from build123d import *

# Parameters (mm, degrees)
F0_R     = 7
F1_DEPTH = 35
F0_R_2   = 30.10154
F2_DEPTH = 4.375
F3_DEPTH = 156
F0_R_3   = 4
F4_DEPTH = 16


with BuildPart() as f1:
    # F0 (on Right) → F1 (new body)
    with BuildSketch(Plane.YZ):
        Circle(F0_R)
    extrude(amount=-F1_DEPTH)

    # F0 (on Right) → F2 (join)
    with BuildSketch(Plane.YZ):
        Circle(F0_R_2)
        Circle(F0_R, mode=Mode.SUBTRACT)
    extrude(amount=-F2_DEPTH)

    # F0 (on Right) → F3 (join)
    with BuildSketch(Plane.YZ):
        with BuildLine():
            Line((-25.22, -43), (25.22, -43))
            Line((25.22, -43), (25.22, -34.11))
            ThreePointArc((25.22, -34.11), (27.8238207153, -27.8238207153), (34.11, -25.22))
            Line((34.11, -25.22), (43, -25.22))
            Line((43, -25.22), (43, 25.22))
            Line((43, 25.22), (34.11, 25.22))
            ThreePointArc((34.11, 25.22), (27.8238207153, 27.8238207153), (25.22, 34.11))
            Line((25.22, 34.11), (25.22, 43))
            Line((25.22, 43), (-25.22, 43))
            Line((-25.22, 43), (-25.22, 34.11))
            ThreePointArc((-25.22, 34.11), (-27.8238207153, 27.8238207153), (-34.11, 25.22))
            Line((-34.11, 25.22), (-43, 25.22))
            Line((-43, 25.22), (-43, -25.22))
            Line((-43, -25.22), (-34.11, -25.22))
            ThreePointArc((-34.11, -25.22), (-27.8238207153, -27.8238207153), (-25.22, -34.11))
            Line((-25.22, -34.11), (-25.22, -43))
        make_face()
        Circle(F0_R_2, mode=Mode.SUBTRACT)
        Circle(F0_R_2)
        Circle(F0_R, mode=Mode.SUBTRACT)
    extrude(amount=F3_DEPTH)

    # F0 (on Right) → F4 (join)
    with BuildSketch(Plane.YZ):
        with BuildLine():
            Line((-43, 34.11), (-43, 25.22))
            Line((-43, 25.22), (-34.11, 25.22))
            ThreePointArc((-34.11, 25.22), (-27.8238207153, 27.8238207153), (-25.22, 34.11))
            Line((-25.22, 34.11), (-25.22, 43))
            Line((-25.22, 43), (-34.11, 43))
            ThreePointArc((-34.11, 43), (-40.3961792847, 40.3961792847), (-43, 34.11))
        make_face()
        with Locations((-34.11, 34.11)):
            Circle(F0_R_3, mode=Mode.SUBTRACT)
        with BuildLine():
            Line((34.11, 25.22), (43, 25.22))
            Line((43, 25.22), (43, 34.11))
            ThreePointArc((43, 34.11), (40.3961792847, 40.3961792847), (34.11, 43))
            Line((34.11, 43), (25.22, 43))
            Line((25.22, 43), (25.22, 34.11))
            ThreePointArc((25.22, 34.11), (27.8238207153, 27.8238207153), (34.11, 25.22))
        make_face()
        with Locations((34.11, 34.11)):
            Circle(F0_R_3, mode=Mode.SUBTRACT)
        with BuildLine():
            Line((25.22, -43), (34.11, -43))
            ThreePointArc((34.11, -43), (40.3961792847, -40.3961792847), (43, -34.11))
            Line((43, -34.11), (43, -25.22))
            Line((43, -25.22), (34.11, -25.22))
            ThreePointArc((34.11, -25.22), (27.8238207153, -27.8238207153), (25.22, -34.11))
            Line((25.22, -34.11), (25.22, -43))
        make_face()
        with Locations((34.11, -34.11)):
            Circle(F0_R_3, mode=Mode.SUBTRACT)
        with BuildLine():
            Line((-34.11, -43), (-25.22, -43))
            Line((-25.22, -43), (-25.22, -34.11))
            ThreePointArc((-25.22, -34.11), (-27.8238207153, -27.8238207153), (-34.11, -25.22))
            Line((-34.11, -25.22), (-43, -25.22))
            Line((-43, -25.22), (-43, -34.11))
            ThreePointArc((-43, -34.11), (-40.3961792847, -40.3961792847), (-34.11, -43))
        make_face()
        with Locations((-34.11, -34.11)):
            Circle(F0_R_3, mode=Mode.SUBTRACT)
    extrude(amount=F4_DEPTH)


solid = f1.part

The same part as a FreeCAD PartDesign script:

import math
import FreeCAD as App
import Part
import Sketcher
Q = App.Units.Quantity

doc = App.newDocument("Part")
body = doc.addObject("PartDesign::Body", "Body")

# Sketch on YZ plane
sketch1 = body.newObject("Sketcher::SketchObject", "Sketch")
sketch1.AttachmentSupport = (doc.getObject("YZ_Plane"), [""])
sketch1.MapMode = "FlatFace"
sketch1.addGeometry(Part.Circle(App.Vector(0, 0, 0), App.Vector(0, 0, 1), 7), False)
sketch1.addConstraint(Sketcher.Constraint("Coincident", 0, 3, -1, 1))
sketch1.addConstraint(Sketcher.Constraint("Diameter", 0, Q("14 mm")))
pad1 = body.newObject("PartDesign::Pad", "Pad")
pad1.Profile = sketch1
pad1.Length = 35
pad1.Reversed = True

# Sketch on YZ plane
sketch2 = body.newObject("Sketcher::SketchObject", "Sketch001")
sketch2.AttachmentSupport = (doc.getObject("YZ_Plane"), [""])
sketch2.MapMode = "FlatFace"
sketch2.addGeometry(Part.Circle(App.Vector(0, 0, 0), App.Vector(0, 0, 1), 30), False)
sketch2.addGeometry(Part.Circle(App.Vector(0, 0, 0), App.Vector(0, 0, 1), 7), False)
sketch2.addConstraint(Sketcher.Constraint("Coincident", 0, 3, -1, 1))
sketch2.addConstraint(Sketcher.Constraint("Coincident", 1, 3, -1, 1))
sketch2.addConstraint(Sketcher.Constraint("Diameter", 1, Q("14 mm")))
sketch2.addConstraint(Sketcher.Constraint("Diameter", 0, Q("60.20308 mm")))
pad2 = body.newObject("PartDesign::Pad", "Pad001")
pad2.Profile = sketch2
pad2.Length = 4.375
pad2.Reversed = True

# Sketch on YZ plane
sketch3 = body.newObject("Sketcher::SketchObject", "Sketch002")
sketch3.AttachmentSupport = (doc.getObject("YZ_Plane"), [""])
sketch3.MapMode = "FlatFace"
sketch3.addGeometry(Part.LineSegment(App.Vector(-25, -43, 0), App.Vector(25, -43, 0)), False)
sketch3.addGeometry(Part.LineSegment(App.Vector(25, -43, 0), App.Vector(25, -34, 0)), False)
sketch3.addGeometry(Part.ArcOfCircle(Part.Circle(App.Vector(34, -34, 0), App.Vector(0, 0, 1), 9), math.radians(90), math.radians(180)), False)
sketch3.addGeometry(Part.LineSegment(App.Vector(34, -25, 0), App.Vector(43, -25, 0)), False)
sketch3.addGeometry(Part.LineSegment(App.Vector(43, -25, 0), App.Vector(43, 25, 0)), False)
sketch3.addGeometry(Part.LineSegment(App.Vector(43, 25, 0), App.Vector(34, 25, 0)), False)
sketch3.addGeometry(Part.ArcOfCircle(Part.Circle(App.Vector(34, 34, 0), App.Vector(0, 0, 1), 9), math.radians(180), math.radians(270)), False)
sketch3.addGeometry(Part.LineSegment(App.Vector(25, 34, 0), App.Vector(25, 43, 0)), False)
sketch3.addGeometry(Part.LineSegment(App.Vector(25, 43, 0), App.Vector(-25, 43, 0)), False)
sketch3.addGeometry(Part.LineSegment(App.Vector(-25, 43, 0), App.Vector(-25, 34, 0)), False)
sketch3.addGeometry(Part.ArcOfCircle(Part.Circle(App.Vector(-34, 34, 0), App.Vector(0, 0, 1), 9), math.radians(-90), math.radians(0)), False)
sketch3.addGeometry(Part.LineSegment(App.Vector(-34, 25, 0), App.Vector(-43, 25, 0)), False)
sketch3.addGeometry(Part.LineSegment(App.Vector(-43, 25, 0), App.Vector(-43, -25, 0)), False)
sketch3.addGeometry(Part.LineSegment(App.Vector(-43, -25, 0), App.Vector(-34, -25, 0)), False)
sketch3.addGeometry(Part.ArcOfCircle(Part.Circle(App.Vector(-34, -34, 0), App.Vector(0, 0, 1), 9), math.radians(0), math.radians(90)), False)
sketch3.addGeometry(Part.LineSegment(App.Vector(-25, -34, 0), App.Vector(-25, -43, 0)), False)
sketch3.addGeometry(Part.Circle(App.Vector(0, 0, 0), App.Vector(0, 0, 1), 7), False)
sketch3.addConstraint(Sketcher.Constraint("Coincident", 0, 2, 1, 1))
sketch3.addConstraint(Sketcher.Constraint("Tangent", 1, 2, 2, 2))
sketch3.addConstraint(Sketcher.Constraint("Tangent", 2, 1, 3, 1))
sketch3.addConstraint(Sketcher.Constraint("Coincident", 3, 2, 4, 1))
sketch3.addConstraint(Sketcher.Constraint("Coincident", 4, 2, 5, 1))
sketch3.addConstraint(Sketcher.Constraint("Tangent", 5, 2, 6, 2))
sketch3.addConstraint(Sketcher.Constraint("Tangent", 6, 1, 7, 1))
sketch3.addConstraint(Sketcher.Constraint("Coincident", 7, 2, 8, 1))
sketch3.addConstraint(Sketcher.Constraint("Coincident", 8, 2, 9, 1))
sketch3.addConstraint(Sketcher.Constraint("Tangent", 9, 2, 10, 2))
sketch3.addConstraint(Sketcher.Constraint("Tangent", 10, 1, 11, 1))
sketch3.addConstraint(Sketcher.Constraint("Coincident", 11, 2, 12, 1))
sketch3.addConstraint(Sketcher.Constraint("Coincident", 12, 2, 13, 1))
sketch3.addConstraint(Sketcher.Constraint("Tangent", 13, 2, 14, 2))
sketch3.addConstraint(Sketcher.Constraint("Tangent", 14, 1, 15, 1))
sketch3.addConstraint(Sketcher.Constraint("Coincident", 15, 2, 0, 1))
sketch3.addConstraint(Sketcher.Constraint("Horizontal", 0))
sketch3.addConstraint(Sketcher.Constraint("Vertical", 1))
sketch3.addConstraint(Sketcher.Constraint("Horizontal", 3))
sketch3.addConstraint(Sketcher.Constraint("Vertical", 4))
sketch3.addConstraint(Sketcher.Constraint("Horizontal", 5))
sketch3.addConstraint(Sketcher.Constraint("Vertical", 7))
sketch3.addConstraint(Sketcher.Constraint("Horizontal", 8))
sketch3.addConstraint(Sketcher.Constraint("Vertical", 9))
sketch3.addConstraint(Sketcher.Constraint("Horizontal", 11))
sketch3.addConstraint(Sketcher.Constraint("Vertical", 12))
sketch3.addConstraint(Sketcher.Constraint("Horizontal", 13))
sketch3.addConstraint(Sketcher.Constraint("Vertical", 15))
sketch3.addConstraint(Sketcher.Constraint("Coincident", 16, 3, -1, 1))
sketch3.addConstraint(Sketcher.Constraint("Equal", 2, 6))
sketch3.addConstraint(Sketcher.Constraint("Equal", 6, 10))
sketch3.addConstraint(Sketcher.Constraint("Equal", 10, 14))
sketch3.addConstraint(Sketcher.Constraint("Symmetric", 2, 3, 10, 3, -1, 1))
sketch3.addConstraint(Sketcher.Constraint("Symmetric", 6, 3, 14, 3, -1, 1))
sketch3.addConstraint(Sketcher.Constraint("Symmetric", 6, 3, 10, 3, -2))
sketch3.addConstraint(Sketcher.Constraint("Equal", 5, 11))
sketch3.addConstraint(Sketcher.Constraint("Equal", 13, 1))
sketch3.addConstraint(Sketcher.Constraint("Equal", 8, 4))
sketch3.addConstraint(Sketcher.Constraint("Equal", 1, 7))
sketch3.addConstraint(Sketcher.Constraint("Diameter", 16, Q("14 mm")))
sketch3.addConstraint(Sketcher.Constraint("Radius", 2, Q("8.89 mm")))
sketch3.addConstraint(Sketcher.Constraint("DistanceY", 0, 2, -1, 1, Q("43 mm")))
sketch3.addConstraint(Sketcher.Constraint("DistanceX", 0, 1, 0, 2, Q("50.44 mm")))
pad3 = body.newObject("PartDesign::Pad", "Pad002")
pad3.Profile = sketch3
pad3.Length = 156

# Sketch on YZ plane
sketch4 = body.newObject("Sketcher::SketchObject", "Sketch003")
sketch4.AttachmentSupport = (doc.getObject("YZ_Plane"), [""])
sketch4.MapMode = "FlatFace"
sketch4.addGeometry(Part.LineSegment(App.Vector(-43, 34.1, 0), App.Vector(-43, 25.2, 0)), False)
sketch4.addGeometry(Part.LineSegment(App.Vector(-43, 25.2, 0), App.Vector(-34.1, 25.2, 0)), False)
sketch4.addGeometry(Part.ArcOfCircle(Part.Circle(App.Vector(-34.1, 34.1, 0), App.Vector(0, 0, 1), 8.9), math.radians(-90), math.radians(0)), False)
sketch4.addGeometry(Part.LineSegment(App.Vector(-25.2, 34.1, 0), App.Vector(-25.2, 43, 0)), False)
sketch4.addGeometry(Part.LineSegment(App.Vector(-25.2, 43, 0), App.Vector(-34.1, 43, 0)), False)
sketch4.addGeometry(Part.ArcOfCircle(Part.Circle(App.Vector(-34.1, 34.1, 0), App.Vector(0, 0, 1), 8.9), math.radians(90), math.radians(180)), False)
sketch4.addGeometry(Part.Circle(App.Vector(-34.1, 34.1, 0), App.Vector(0, 0, 1), 4), False)
sketch4.addGeometry(Part.LineSegment(App.Vector(34.1, 25.2, 0), App.Vector(43, 25.2, 0)), False)
sketch4.addGeometry(Part.LineSegment(App.Vector(43, 25.2, 0), App.Vector(43, 34.1, 0)), False)
sketch4.addGeometry(Part.ArcOfCircle(Part.Circle(App.Vector(34.1, 34.1, 0), App.Vector(0, 0, 1), 8.9), math.radians(0), math.radians(90)), False)
sketch4.addGeometry(Part.LineSegment(App.Vector(34.1, 43, 0), App.Vector(25.2, 43, 0)), False)
sketch4.addGeometry(Part.LineSegment(App.Vector(25.2, 43, 0), App.Vector(25.2, 34.1, 0)), False)
sketch4.addGeometry(Part.ArcOfCircle(Part.Circle(App.Vector(34.1, 34.1, 0), App.Vector(0, 0, 1), 8.9), math.radians(180), math.radians(270)), False)
sketch4.addGeometry(Part.Circle(App.Vector(34.1, 34.1, 0), App.Vector(0, 0, 1), 4), False)
sketch4.addGeometry(Part.LineSegment(App.Vector(25.2, -43, 0), App.Vector(34.1, -43, 0)), False)
sketch4.addGeometry(Part.ArcOfCircle(Part.Circle(App.Vector(34.1, -34.1, 0), App.Vector(0, 0, 1), 8.9), math.radians(-90), math.radians(0)), False)
sketch4.addGeometry(Part.LineSegment(App.Vector(43, -34.1, 0), App.Vector(43, -25.2, 0)), False)
sketch4.addGeometry(Part.LineSegment(App.Vector(43, -25.2, 0), App.Vector(34.1, -25.2, 0)), False)
sketch4.addGeometry(Part.ArcOfCircle(Part.Circle(App.Vector(34.1, -34.1, 0), App.Vector(0, 0, 1), 8.9), math.radians(90), math.radians(180)), False)
sketch4.addGeometry(Part.LineSegment(App.Vector(25.2, -34.1, 0), App.Vector(25.2, -43, 0)), False)
sketch4.addGeometry(Part.Circle(App.Vector(34.1, -34.1, 0), App.Vector(0, 0, 1), 4), False)
sketch4.addGeometry(Part.LineSegment(App.Vector(-34.1, -43, 0), App.Vector(-25.2, -43, 0)), False)
sketch4.addGeometry(Part.LineSegment(App.Vector(-25.2, -43, 0), App.Vector(-25.2, -34.1, 0)), False)
sketch4.addGeometry(Part.ArcOfCircle(Part.Circle(App.Vector(-34.1, -34.1, 0), App.Vector(0, 0, 1), 8.9), math.radians(0), math.radians(90)), False)
sketch4.addGeometry(Part.LineSegment(App.Vector(-34.1, -25.2, 0), App.Vector(-43, -25.2, 0)), False)
sketch4.addGeometry(Part.LineSegment(App.Vector(-43, -25.2, 0), App.Vector(-43, -34.1, 0)), False)
sketch4.addGeometry(Part.ArcOfCircle(Part.Circle(App.Vector(-34.1, -34.1, 0), App.Vector(0, 0, 1), 8.9), math.radians(180), math.radians(270)), False)
sketch4.addGeometry(Part.Circle(App.Vector(-34.1, -34.1, 0), App.Vector(0, 0, 1), 4), False)
sketch4.addConstraint(Sketcher.Constraint("Coincident", 0, 2, 1, 1))
sketch4.addConstraint(Sketcher.Constraint("Tangent", 1, 2, 2, 1))
sketch4.addConstraint(Sketcher.Constraint("Tangent", 2, 2, 3, 1))
sketch4.addConstraint(Sketcher.Constraint("Coincident", 3, 2, 4, 1))
sketch4.addConstraint(Sketcher.Constraint("Tangent", 4, 2, 5, 1))
sketch4.addConstraint(Sketcher.Constraint("Tangent", 5, 2, 0, 1))
sketch4.addConstraint(Sketcher.Constraint("Coincident", 7, 2, 8, 1))
sketch4.addConstraint(Sketcher.Constraint("Tangent", 8, 2, 9, 1))
sketch4.addConstraint(Sketcher.Constraint("Tangent", 9, 2, 10, 1))
sketch4.addConstraint(Sketcher.Constraint("Coincident", 10, 2, 11, 1))
sketch4.addConstraint(Sketcher.Constraint("Tangent", 11, 2, 12, 1))
sketch4.addConstraint(Sketcher.Constraint("Tangent", 12, 2, 7, 1))
sketch4.addConstraint(Sketcher.Constraint("Tangent", 14, 2, 15, 1))
sketch4.addConstraint(Sketcher.Constraint("Tangent", 15, 2, 16, 1))
sketch4.addConstraint(Sketcher.Constraint("Coincident", 16, 2, 17, 1))
sketch4.addConstraint(Sketcher.Constraint("Tangent", 17, 2, 18, 1))
sketch4.addConstraint(Sketcher.Constraint("Tangent", 18, 2, 19, 1))
sketch4.addConstraint(Sketcher.Constraint("Coincident", 19, 2, 14, 1))
sketch4.addConstraint(Sketcher.Constraint("Coincident", 21, 2, 22, 1))
sketch4.addConstraint(Sketcher.Constraint("Tangent", 22, 2, 23, 1))
sketch4.addConstraint(Sketcher.Constraint("Tangent", 23, 2, 24, 1))
sketch4.addConstraint(Sketcher.Constraint("Coincident", 24, 2, 25, 1))
sketch4.addConstraint(Sketcher.Constraint("Tangent", 25, 2, 26, 1))
sketch4.addConstraint(Sketcher.Constraint("Tangent", 26, 2, 21, 1))
sketch4.addConstraint(Sketcher.Constraint("Vertical", 0))
sketch4.addConstraint(Sketcher.Constraint("Horizontal", 1))
sketch4.addConstraint(Sketcher.Constraint("Vertical", 3))
sketch4.addConstraint(Sketcher.Constraint("Horizontal", 4))
sketch4.addConstraint(Sketcher.Constraint("Horizontal", 7))
sketch4.addConstraint(Sketcher.Constraint("Vertical", 8))
sketch4.addConstraint(Sketcher.Constraint("Horizontal", 10))
sketch4.addConstraint(Sketcher.Constraint("Vertical", 11))
sketch4.addConstraint(Sketcher.Constraint("Horizontal", 14))
sketch4.addConstraint(Sketcher.Constraint("Vertical", 16))
sketch4.addConstraint(Sketcher.Constraint("Horizontal", 17))
sketch4.addConstraint(Sketcher.Constraint("Vertical", 19))
sketch4.addConstraint(Sketcher.Constraint("Horizontal", 21))
sketch4.addConstraint(Sketcher.Constraint("Vertical", 22))
sketch4.addConstraint(Sketcher.Constraint("Horizontal", 24))
sketch4.addConstraint(Sketcher.Constraint("Vertical", 25))
sketch4.addConstraint(Sketcher.Constraint("Coincident", 5, 3, 2, 3))
sketch4.addConstraint(Sketcher.Constraint("Coincident", 6, 3, 2, 3))
sketch4.addConstraint(Sketcher.Constraint("Coincident", 12, 3, 9, 3))
sketch4.addConstraint(Sketcher.Constraint("Coincident", 13, 3, 9, 3))
sketch4.addConstraint(Sketcher.Constraint("Coincident", 18, 3, 15, 3))
sketch4.addConstraint(Sketcher.Constraint("Coincident", 20, 3, 15, 3))
sketch4.addConstraint(Sketcher.Constraint("Coincident", 26, 3, 23, 3))
sketch4.addConstraint(Sketcher.Constraint("Coincident", 27, 3, 23, 3))
sketch4.addConstraint(Sketcher.Constraint("Equal", 2, 5))
sketch4.addConstraint(Sketcher.Constraint("Equal", 5, 9))
sketch4.addConstraint(Sketcher.Constraint("Equal", 9, 12))
sketch4.addConstraint(Sketcher.Constraint("Equal", 6, 13))
sketch4.addConstraint(Sketcher.Constraint("Equal", 12, 15))
sketch4.addConstraint(Sketcher.Constraint("Equal", 15, 18))
sketch4.addConstraint(Sketcher.Constraint("Equal", 13, 20))
sketch4.addConstraint(Sketcher.Constraint("Equal", 18, 23))
sketch4.addConstraint(Sketcher.Constraint("Equal", 23, 26))
sketch4.addConstraint(Sketcher.Constraint("Equal", 20, 27))
sketch4.addConstraint(Sketcher.Constraint("Symmetric", 2, 3, 15, 3, -1, 1))
sketch4.addConstraint(Sketcher.Constraint("Symmetric", 9, 3, 23, 3, -1, 1))
sketch4.addConstraint(Sketcher.Constraint("Symmetric", 2, 3, 9, 3, -2))
sketch4.addConstraint(Sketcher.Constraint("Diameter", 6, Q("8 mm")))
sketch4.addConstraint(Sketcher.Constraint("Radius", 2, Q("8.89 mm")))
sketch4.addConstraint(Sketcher.Constraint("DistanceX", 0, 2, -1, 1, Q("43 mm")))
sketch4.addConstraint(Sketcher.Constraint("DistanceY", -1, 1, 3, 2, Q("43 mm")))
pad4 = body.newObject("PartDesign::Pad", "Pad003")
pad4.Profile = sketch4
pad4.Length = 16

doc.recompute()
